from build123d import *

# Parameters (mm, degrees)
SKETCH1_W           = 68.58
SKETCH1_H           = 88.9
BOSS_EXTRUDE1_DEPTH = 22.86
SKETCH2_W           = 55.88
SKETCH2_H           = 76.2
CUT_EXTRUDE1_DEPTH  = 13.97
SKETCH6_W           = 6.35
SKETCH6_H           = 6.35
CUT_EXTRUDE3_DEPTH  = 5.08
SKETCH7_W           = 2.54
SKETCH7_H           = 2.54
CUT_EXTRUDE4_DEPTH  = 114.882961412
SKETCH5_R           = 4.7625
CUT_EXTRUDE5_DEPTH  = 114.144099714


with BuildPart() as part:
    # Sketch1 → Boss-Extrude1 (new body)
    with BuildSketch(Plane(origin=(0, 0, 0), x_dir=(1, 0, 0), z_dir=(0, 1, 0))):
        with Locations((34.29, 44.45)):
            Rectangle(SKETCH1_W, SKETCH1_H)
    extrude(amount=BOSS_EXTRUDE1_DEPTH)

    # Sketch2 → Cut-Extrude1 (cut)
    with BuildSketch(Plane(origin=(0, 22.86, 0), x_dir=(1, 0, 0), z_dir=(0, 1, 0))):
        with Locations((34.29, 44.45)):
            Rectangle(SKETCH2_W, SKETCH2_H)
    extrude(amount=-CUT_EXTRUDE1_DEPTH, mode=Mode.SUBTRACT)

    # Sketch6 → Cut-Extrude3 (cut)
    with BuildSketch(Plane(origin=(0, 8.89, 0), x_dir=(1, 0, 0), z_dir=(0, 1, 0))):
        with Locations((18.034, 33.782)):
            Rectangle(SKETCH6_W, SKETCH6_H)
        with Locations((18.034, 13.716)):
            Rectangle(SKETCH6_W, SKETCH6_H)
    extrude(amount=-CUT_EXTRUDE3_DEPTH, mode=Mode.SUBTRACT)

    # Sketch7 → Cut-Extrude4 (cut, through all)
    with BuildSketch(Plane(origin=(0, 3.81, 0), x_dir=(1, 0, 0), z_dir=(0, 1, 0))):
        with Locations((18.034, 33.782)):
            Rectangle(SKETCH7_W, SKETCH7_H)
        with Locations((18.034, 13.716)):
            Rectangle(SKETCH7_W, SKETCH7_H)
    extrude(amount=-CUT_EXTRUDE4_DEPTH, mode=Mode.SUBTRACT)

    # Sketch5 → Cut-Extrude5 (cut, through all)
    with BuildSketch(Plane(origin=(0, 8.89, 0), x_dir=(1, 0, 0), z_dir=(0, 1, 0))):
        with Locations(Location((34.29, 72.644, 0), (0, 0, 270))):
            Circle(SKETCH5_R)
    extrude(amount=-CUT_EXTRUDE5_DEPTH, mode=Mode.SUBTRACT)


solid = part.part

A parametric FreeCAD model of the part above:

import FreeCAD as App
import Part
import Sketcher
Q = App.Units.Quantity


def add_polygon(sketch, points):
    """Adds a closed chain of lines whose ends are joined by coincident constraints."""
    first, n = sketch.GeometryCount, len(points)
    for a, b in zip(points, points[1:] + points[:1]):
        sketch.addGeometry(Part.LineSegment(App.Vector(*a, 0), App.Vector(*b, 0)), False)
    for i in range(n):
        sketch.addConstraint(Sketcher.Constraint("Coincident", first + i, 2, first + (i + 1) % n, 1))

doc = App.newDocument("Part")
body = doc.addObject("PartDesign::Body", "Body")

# Sketch on XZ plane
sketch1 = body.newObject("Sketcher::SketchObject", "Sketch")
sketch1.AttachmentSupport = (doc.getObject("XZ_Plane"), [""])
sketch1.MapMode = "FlatFace"
add_polygon(sketch1, [(0, -88.9), (0, 0), (68.58, 0), (68.58, -88.9)])  # lines 0-3
sketch1.addConstraint(Sketcher.Constraint("Vertical", 0))
sketch1.addConstraint(Sketcher.Constraint("Horizontal", 1))
sketch1.addConstraint(Sketcher.Constraint("Vertical", 2))
sketch1.addConstraint(Sketcher.Constraint("Horizontal", 3))
sketch1.addConstraint(Sketcher.Constraint("Coincident", 0, 2, -1, 1))
sketch1.addConstraint(Sketcher.Constraint("DistanceX", 1, 1, 1, 2, Q("2.7 in")))
sketch1.addConstraint(Sketcher.Constraint("DistanceY", 0, 1, 0, 2, Q("3.5 in")))
pad1 = body.newObject("PartDesign::Pad", "Pad")
pad1.Profile = sketch1
pad1.Length = Q("0.9 in")
pad1.Reversed = True

# Sketch on XZ plane
sketch2 = body.newObject("Sketcher::SketchObject", "Sketch001")
sketch2.AttachmentSupport = (doc.getObject("XZ_Plane"), [""])
sketch2.MapMode = "FlatFace"
sketch2.AttachmentOffset = App.Placement(App.Vector(0, 0, -0.9 * 25.4), App.Rotation())
add_polygon(sketch2, [(6.35, -82.55), (6.35, -6.35), (62.23, -6.35), (62.23, -82.55)])  # lines 0-3
sketch2.addConstraint(Sketcher.Constraint("Vertical", 0))
sketch2.addConstraint(Sketcher.Constraint("Horizontal", 1))
sketch2.addConstraint(Sketcher.Constraint("Vertical", 2))
sketch2.addConstraint(Sketcher.Constraint("Horizontal", 3))
sketch2.addConstraint(Sketcher.Constraint("DistanceY", 0, 1, 0, 2, Q("3 in")))
sketch2.addConstraint(Sketcher.Constraint("DistanceX", 1, 1, 1, 2, Q("2.2 in")))
sketch2.addConstraint(Sketcher.Constraint("DistanceX", -1, 1, 0, 2, Q("0.25 in")))
sketch2.addConstraint(Sketcher.Constraint("DistanceY", 0, 2, -1, 1, Q("0.25 in")))
pocket1 = body.newObject("PartDesign::Pocket", "Pocket")
pocket1.Profile = sketch2
pocket1.Length = Q("0.55 in")
pocket1.Reversed = True

# Sketch on XZ plane
sketch3 = body.newObject("Sketcher::SketchObject", "Sketch002")
sketch3.AttachmentSupport = (doc.getObject("XZ_Plane"), [""])
sketch3.MapMode = "FlatFace"
sketch3.AttachmentOffset = App.Placement(App.Vector(0, 0, -0.35 * 25.4), App.Rotation())
add_polygon(sketch3, [(14.859, -36.957), (14.859, -30.607), (21.209, -30.607), (21.209, -36.957)])  # lines 0-3
add_polygon(sketch3, [(14.859, -16.891), (14.859, -10.541), (21.209, -10.541), (21.209, -16.891)])  # lines 4-7
sketch3.addConstraint(Sketcher.Constraint("Vertical", 0))
sketch3.addConstraint(Sketcher.Constraint("Horizontal", 1))
sketch3.addConstraint(Sketcher.Constraint("Vertical", 2))
sketch3.addConstraint(Sketcher.Constraint("Horizontal", 3))
sketch3.addConstraint(Sketcher.Constraint("Vertical", 4))
sketch3.addConstraint(Sketcher.Constraint("Horizontal", 5))
sketch3.addConstraint(Sketcher.Constraint("Vertical", 6))
sketch3.addConstraint(Sketcher.Constraint("Horizontal", 7))
sketch3.addConstraint(Sketcher.Constraint("Vertical", 3, 2, 4, 2))
sketch3.addConstraint(Sketcher.Constraint("Vertical", 2, 2, 5, 2))
sketch3.addConstraint(Sketcher.Constraint("Equal", 7, 0))
sketch3.addConstraint(Sketcher.Constraint("Equal", 2, 4))
sketch3.addConstraint(Sketcher.Constraint("DistanceX", 1, 1, 1, 2, Q("0.25 in")))
sketch3.addConstraint(Sketcher.Constraint("DistanceY", 0, 2, 4, 2, Q("0.79 in")))
sketch3.addConstraint(Sketcher.Constraint("DistanceX", -1, 1, 0, 2, Q("0.585 in")))
sketch3.addConstraint(Sketcher.Constraint("DistanceY", 0, 2, -1, 1, Q("1.205 in")))
pocket2 = body.newObject("PartDesign::Pocket", "Pocket001")
pocket2.Profile = sketch3
pocket2.Length = Q("0.2 in")
pocket2.Reversed = True

# Sketch on XZ plane
sketch4 = body.newObject("Sketcher::SketchObject", "Sketch003")
sketch4.AttachmentSupport = (doc.getObject("XZ_Plane"), [""])
sketch4.MapMode = "FlatFace"
sketch4.AttachmentOffset = App.Placement(App.Vector(0, 0, -0.15 * 25.4), App.Rotation())
add_polygon(sketch4, [(16.764, -35.052), (16.764, -32.512), (19.304, -32.512), (19.304, -35.052)])  # lines 0-3
add_polygon(sketch4, [(16.764, -14.986), (16.764, -12.446), (19.304, -12.446), (19.304, -14.986)])  # lines 4-7
sketch4.addConstraint(Sketcher.Constraint("Vertical", 0))
sketch4.addConstraint(Sketcher.Constraint("Horizontal", 1))
sketch4.addConstraint(Sketcher.Constraint("Vertical", 2))
sketch4.addConstraint(Sketcher.Constraint("Horizontal", 3))
sketch4.addConstraint(Sketcher.Constraint("Vertical", 4))
sketch4.addConstraint(Sketcher.Constraint("Horizontal", 5))
sketch4.addConstraint(Sketcher.Constraint("Vertical", 6))
sketch4.addConstraint(Sketcher.Constraint("Horizontal", 7))
sketch4.addConstraint(Sketcher.Constraint("Vertical", 3, 2, 4, 2))
sketch4.addConstraint(Sketcher.Constraint("Vertical", 2, 2, 5, 2))
sketch4.addConstraint(Sketcher.Constraint("Equal", 7, 0))
sketch4.addConstraint(Sketcher.Constraint("Equal", 2, 4))
sketch4.addConstraint(Sketcher.Constraint("DistanceX", 1, 1, 1, 2, Q("0.1 in")))
sketch4.addConstraint(Sketcher.Constraint("DistanceX", -1, 1, 0, 2, Q("0.66 in")))
sketch4.addConstraint(Sketcher.Constraint("DistanceY", 0, 2, -1, 1, Q("1.28 in")))
sketch4.addConstraint(Sketcher.Constraint("DistanceY", 4, 2, -1, 1, Q("0.49 in")))
pocket3 = body.newObject("PartDesign::Pocket", "Pocket002")
pocket3.Profile = sketch4
pocket3.Type = "ThroughAll"
pocket3.Reversed = True

# Sketch on XZ plane
sketch5 = body.newObject("Sketcher::SketchObject", "Sketch004")
sketch5.AttachmentSupport = (doc.getObject("XZ_Plane"), [""])
sketch5.MapMode = "FlatFace"
sketch5.AttachmentOffset = App.Placement(App.Vector(0, 0, -0.35 * 25.4), App.Rotation())
sketch5.addGeometry(Part.Circle(App.Vector(34.29, -72.644, 0), App.Vector(0, 0, 1), 4.7625), False)
sketch5.addConstraint(Sketcher.Constraint("Diameter", 0, Q("0.375 in")))
sketch5.addConstraint(Sketcher.Constraint("DistanceX", -1, 1, 0, 3, Q("1.35 in")))
sketch5.addConstraint(Sketcher.Constraint("DistanceY", 0, 3, -1, 1, Q("2.86 in")))
pocket4 = body.newObject("PartDesign::Pocket", "Pocket003")
pocket4.Profile = sketch5
pocket4.Type = "ThroughAll"
pocket4.Reversed = True

doc.recompute()
